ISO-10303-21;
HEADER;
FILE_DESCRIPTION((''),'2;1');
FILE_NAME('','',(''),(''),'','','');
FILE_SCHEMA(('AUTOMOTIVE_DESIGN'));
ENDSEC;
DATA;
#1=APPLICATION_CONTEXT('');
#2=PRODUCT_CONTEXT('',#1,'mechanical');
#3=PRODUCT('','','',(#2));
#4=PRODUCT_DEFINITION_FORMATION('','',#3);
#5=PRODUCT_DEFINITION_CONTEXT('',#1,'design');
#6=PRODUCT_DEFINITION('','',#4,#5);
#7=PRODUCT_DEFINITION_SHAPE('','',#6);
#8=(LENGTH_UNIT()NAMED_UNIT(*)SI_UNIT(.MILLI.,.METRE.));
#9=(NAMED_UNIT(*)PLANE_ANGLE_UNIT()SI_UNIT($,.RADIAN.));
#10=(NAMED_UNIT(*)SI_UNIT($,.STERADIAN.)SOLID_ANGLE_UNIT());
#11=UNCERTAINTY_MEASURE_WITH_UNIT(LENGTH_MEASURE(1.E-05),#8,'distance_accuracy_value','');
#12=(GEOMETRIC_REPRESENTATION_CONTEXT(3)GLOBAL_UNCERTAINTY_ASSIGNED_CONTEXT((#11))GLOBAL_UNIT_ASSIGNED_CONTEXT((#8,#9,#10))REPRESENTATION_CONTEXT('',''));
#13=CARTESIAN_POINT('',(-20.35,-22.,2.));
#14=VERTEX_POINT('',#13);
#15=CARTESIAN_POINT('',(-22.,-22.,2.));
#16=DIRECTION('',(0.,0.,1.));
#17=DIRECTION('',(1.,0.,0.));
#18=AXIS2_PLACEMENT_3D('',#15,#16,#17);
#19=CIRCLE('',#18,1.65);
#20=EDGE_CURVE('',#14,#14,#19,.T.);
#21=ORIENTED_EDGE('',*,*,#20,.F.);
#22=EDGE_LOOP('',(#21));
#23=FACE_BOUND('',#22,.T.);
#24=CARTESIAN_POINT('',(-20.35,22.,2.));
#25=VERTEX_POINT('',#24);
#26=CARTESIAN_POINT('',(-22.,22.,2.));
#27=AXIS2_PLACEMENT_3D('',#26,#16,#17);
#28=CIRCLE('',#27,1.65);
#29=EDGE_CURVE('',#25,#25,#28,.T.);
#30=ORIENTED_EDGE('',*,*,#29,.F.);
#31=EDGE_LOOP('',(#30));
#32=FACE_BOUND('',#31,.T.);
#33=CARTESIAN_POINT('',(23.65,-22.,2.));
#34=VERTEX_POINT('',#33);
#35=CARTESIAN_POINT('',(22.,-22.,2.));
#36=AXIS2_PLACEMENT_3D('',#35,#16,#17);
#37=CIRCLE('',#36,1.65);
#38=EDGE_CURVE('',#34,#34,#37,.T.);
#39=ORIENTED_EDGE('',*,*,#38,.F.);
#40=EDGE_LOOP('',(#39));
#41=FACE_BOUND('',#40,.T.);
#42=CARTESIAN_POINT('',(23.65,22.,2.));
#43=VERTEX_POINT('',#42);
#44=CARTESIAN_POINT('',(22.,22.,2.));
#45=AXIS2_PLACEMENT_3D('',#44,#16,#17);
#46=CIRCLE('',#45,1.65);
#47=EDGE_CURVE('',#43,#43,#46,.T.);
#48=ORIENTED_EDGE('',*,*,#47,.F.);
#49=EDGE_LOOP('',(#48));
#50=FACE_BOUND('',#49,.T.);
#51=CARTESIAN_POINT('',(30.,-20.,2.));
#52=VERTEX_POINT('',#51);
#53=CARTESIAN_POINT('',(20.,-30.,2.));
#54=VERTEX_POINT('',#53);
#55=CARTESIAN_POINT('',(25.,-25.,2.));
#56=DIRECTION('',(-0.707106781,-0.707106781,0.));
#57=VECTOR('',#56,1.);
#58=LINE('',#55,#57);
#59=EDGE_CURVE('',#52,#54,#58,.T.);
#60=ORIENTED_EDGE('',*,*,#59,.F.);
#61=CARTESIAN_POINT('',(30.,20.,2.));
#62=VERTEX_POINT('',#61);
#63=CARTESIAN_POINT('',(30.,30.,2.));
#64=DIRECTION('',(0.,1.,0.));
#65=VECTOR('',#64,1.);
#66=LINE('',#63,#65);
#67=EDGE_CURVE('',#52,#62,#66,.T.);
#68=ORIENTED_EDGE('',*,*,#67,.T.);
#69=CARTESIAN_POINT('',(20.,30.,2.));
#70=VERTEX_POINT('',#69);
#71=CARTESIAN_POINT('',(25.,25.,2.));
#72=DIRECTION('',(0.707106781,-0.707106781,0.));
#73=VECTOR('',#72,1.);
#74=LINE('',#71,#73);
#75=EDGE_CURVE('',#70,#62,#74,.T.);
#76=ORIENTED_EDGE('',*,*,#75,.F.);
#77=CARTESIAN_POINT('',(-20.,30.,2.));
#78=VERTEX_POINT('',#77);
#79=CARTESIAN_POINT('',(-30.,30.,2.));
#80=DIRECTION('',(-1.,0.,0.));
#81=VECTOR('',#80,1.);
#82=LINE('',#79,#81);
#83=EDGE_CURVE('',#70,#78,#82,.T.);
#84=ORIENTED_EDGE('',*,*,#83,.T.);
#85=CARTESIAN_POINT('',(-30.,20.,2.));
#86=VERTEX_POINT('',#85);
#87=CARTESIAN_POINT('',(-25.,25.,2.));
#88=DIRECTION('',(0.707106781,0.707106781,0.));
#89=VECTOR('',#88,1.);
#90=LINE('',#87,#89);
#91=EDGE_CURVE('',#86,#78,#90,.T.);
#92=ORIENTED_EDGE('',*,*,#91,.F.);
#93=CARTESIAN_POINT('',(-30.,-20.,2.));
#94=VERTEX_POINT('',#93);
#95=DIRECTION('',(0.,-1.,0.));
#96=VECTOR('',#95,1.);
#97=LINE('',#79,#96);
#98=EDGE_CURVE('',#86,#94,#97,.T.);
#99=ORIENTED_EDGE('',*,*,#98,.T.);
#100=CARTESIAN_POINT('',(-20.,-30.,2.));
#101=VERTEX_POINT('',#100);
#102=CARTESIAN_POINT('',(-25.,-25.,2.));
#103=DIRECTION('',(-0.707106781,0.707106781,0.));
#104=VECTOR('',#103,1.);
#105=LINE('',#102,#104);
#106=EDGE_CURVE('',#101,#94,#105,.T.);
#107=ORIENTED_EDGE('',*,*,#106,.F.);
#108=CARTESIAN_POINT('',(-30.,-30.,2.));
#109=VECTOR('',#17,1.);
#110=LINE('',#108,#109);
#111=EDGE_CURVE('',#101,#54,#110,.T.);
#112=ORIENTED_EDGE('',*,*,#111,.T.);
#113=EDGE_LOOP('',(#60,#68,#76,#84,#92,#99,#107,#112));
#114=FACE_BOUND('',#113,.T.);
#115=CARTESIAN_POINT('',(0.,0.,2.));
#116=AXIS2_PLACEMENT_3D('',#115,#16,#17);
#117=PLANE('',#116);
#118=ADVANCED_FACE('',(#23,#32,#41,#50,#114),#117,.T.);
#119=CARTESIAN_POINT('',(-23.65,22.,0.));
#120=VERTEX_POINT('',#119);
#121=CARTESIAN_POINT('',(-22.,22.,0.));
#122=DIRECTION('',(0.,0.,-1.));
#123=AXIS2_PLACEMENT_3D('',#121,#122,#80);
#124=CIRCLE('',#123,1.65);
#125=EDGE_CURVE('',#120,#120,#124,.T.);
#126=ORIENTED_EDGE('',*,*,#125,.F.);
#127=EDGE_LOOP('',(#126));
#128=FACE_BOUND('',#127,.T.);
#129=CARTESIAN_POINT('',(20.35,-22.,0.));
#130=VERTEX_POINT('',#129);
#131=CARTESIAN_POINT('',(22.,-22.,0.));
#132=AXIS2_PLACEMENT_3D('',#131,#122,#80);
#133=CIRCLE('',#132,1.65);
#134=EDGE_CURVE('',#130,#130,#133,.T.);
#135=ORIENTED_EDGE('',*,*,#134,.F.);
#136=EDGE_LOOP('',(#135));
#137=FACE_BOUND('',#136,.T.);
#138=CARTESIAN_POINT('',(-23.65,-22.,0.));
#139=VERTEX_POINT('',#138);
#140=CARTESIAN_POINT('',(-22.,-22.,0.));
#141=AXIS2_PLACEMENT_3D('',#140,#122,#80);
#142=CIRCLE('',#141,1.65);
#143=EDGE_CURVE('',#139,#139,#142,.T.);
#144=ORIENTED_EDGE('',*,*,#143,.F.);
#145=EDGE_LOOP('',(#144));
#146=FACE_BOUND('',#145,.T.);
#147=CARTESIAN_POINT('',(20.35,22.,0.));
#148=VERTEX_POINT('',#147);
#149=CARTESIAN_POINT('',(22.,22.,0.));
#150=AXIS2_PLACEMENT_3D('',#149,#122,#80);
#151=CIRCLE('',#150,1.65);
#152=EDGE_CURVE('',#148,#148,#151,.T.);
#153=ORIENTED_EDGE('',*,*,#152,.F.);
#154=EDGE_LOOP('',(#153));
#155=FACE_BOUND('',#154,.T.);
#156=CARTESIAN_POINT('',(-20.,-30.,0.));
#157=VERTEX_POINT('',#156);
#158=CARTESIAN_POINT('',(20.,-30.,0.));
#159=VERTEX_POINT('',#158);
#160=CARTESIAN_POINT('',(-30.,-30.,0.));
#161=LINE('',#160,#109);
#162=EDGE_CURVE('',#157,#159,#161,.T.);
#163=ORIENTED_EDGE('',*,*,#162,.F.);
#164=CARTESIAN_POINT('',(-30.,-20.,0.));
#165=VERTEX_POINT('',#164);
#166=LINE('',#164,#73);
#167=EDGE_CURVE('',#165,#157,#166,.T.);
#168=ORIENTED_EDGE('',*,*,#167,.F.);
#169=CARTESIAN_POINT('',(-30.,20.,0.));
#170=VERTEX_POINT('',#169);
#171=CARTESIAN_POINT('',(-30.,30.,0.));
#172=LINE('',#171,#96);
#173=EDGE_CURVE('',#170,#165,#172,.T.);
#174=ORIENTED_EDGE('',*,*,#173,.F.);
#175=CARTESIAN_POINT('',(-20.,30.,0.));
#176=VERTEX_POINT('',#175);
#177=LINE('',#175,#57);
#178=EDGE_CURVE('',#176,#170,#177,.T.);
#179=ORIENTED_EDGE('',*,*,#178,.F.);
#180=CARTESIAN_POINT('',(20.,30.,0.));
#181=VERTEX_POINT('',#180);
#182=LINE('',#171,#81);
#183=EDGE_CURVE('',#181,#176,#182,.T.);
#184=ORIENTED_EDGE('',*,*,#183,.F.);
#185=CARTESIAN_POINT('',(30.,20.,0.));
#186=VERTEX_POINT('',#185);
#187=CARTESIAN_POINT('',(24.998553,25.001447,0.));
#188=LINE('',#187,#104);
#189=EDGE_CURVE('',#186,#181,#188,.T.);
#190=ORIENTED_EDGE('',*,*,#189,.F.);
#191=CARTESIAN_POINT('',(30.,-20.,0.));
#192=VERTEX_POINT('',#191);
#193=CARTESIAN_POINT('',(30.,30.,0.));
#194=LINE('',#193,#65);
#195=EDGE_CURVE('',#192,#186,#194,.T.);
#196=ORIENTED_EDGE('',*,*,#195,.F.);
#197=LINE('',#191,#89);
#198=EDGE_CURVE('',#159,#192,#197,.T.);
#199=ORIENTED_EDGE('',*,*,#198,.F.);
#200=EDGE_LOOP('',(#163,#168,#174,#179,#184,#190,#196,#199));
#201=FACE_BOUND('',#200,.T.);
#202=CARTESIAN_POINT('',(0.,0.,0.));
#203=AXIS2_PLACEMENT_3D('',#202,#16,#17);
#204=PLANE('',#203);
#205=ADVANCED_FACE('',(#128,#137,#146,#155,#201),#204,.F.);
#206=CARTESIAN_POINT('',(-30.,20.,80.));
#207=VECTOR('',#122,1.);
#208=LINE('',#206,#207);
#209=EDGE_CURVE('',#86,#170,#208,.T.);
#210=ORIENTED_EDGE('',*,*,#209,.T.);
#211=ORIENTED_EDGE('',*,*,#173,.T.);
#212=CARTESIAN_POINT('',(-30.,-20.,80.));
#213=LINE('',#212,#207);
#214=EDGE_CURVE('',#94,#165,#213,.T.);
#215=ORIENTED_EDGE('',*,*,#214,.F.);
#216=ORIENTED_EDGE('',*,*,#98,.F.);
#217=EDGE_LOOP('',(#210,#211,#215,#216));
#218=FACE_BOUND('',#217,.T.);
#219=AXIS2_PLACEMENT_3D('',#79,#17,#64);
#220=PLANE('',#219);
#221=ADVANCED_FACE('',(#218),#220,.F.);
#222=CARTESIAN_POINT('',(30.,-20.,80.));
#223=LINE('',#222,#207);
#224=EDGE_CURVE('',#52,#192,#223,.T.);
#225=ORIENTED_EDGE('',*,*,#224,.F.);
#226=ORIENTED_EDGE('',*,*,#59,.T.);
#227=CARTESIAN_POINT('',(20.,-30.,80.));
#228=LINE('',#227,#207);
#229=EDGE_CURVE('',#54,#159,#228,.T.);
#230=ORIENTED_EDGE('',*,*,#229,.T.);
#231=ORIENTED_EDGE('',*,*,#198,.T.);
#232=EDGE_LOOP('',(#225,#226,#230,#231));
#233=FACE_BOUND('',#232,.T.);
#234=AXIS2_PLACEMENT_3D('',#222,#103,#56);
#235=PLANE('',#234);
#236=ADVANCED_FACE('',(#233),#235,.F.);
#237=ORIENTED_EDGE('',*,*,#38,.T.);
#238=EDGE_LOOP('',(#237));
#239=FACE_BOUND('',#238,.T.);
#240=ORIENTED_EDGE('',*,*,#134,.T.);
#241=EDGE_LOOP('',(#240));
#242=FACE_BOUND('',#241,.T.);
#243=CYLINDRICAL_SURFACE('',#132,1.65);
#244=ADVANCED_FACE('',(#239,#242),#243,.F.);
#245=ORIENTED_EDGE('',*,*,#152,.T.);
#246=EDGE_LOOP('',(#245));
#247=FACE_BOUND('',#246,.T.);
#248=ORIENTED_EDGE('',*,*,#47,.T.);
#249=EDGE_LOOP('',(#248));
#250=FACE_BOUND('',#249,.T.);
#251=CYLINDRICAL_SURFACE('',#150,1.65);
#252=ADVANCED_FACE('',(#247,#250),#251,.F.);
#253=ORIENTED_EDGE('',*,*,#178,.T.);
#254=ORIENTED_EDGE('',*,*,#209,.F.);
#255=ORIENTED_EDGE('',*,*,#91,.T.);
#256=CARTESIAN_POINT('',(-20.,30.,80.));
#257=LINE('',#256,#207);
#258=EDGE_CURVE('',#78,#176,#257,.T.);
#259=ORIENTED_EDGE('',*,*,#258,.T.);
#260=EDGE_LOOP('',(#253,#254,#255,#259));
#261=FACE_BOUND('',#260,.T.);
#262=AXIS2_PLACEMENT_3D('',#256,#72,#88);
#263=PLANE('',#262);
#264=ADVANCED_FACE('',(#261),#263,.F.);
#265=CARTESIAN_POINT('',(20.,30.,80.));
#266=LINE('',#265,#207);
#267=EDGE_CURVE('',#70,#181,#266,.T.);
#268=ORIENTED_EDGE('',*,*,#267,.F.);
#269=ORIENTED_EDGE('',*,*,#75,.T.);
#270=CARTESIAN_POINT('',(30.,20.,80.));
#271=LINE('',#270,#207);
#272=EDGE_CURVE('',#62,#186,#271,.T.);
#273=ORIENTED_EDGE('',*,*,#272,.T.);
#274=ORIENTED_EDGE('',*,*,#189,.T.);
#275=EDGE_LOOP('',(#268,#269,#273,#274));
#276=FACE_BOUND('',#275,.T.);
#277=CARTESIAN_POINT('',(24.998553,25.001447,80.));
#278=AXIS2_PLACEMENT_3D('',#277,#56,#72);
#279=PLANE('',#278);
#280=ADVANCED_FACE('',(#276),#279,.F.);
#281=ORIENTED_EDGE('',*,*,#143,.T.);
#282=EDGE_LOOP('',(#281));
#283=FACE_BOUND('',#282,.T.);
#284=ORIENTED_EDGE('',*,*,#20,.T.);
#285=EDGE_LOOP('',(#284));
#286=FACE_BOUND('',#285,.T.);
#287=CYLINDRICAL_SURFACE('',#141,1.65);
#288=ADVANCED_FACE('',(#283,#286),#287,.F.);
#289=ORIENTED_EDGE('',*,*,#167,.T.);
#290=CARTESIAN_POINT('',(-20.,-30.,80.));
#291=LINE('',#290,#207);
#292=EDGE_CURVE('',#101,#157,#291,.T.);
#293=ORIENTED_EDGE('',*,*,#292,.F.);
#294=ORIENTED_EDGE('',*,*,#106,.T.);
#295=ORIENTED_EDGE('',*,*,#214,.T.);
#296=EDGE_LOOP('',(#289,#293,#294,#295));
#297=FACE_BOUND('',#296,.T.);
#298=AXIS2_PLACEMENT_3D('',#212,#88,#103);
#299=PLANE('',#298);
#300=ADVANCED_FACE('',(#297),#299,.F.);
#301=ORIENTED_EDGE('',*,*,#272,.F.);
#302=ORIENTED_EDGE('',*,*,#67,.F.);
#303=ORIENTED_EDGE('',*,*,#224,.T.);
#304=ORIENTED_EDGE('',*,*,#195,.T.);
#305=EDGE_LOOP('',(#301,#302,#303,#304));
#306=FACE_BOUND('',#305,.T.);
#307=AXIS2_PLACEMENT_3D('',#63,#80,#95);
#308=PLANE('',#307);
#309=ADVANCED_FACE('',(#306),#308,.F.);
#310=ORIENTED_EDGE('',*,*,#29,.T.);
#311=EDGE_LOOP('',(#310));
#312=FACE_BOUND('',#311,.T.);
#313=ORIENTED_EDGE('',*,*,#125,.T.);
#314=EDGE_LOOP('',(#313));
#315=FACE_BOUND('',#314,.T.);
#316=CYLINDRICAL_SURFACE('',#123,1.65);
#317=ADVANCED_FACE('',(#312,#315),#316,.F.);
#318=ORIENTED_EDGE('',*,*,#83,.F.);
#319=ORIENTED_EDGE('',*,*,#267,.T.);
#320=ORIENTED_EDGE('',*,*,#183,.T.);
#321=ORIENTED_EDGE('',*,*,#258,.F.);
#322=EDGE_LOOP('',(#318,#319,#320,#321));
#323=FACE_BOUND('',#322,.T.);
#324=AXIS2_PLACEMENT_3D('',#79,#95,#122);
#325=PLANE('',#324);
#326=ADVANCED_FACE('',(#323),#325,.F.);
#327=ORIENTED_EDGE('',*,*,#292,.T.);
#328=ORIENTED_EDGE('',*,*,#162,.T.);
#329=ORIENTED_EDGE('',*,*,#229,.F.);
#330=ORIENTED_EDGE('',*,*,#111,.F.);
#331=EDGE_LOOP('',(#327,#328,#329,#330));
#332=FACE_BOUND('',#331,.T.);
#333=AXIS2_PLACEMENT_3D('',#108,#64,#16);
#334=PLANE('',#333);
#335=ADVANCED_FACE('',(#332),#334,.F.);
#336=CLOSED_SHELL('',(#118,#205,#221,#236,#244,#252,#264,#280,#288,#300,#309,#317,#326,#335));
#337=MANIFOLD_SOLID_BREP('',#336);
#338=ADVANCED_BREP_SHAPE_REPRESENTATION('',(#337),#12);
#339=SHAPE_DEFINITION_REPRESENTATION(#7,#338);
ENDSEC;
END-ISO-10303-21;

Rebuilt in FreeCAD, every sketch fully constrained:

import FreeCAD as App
import Part
import Sketcher

V = App.Vector


def add_polygon(sketch, points):
    """Adds a closed chain of lines whose ends are joined by coincident constraints."""
    first, n = sketch.GeometryCount, len(points)
    for a, b in zip(points, points[1:] + points[:1]):
        sketch.addGeometry(Part.LineSegment(App.Vector(*a, 0), App.Vector(*b, 0)), False)
    for i in range(n):
        sketch.addConstraint(Sketcher.Constraint("Coincident", first + i, 2, first + (i + 1) % n, 1))

doc = App.newDocument("Part")
body = doc.addObject("PartDesign::Body", "Body")

# Sketch on XY plane
sketch1 = body.newObject("Sketcher::SketchObject", "Sketch")
sketch1.AttachmentSupport = (doc.getObject("XY_Plane"), [""])
sketch1.MapMode = "FlatFace"
add_polygon(sketch1, [(-30, 30), (-30, -30), (30, -30), (30, 30)])  # lines 0-3
sketch1.addConstraint(Sketcher.Constraint("Vertical", 0))
sketch1.addConstraint(Sketcher.Constraint("Horizontal", 1))
sketch1.addConstraint(Sketcher.Constraint("Vertical", 2))
sketch1.addConstraint(Sketcher.Constraint("Horizontal", 3))
sketch1.addConstraint(Sketcher.Constraint("Symmetric", 0, 2, 2, 2, -1, 1))
sketch1.addConstraint(Sketcher.Constraint("Equal", 3, 0))
sketch1.addConstraint(Sketcher.Constraint("DistanceX", 1, 1, 1, 2, 60.0))
pad1 = body.newObject("PartDesign::Pad", "Pad")
pad1.Profile = sketch1
pad1.Length = 2

# Sketch on XY plane
sketch2 = body.newObject("Sketcher::SketchObject", "Sketch001")
sketch2.AttachmentSupport = (doc.getObject("XY_Plane"), [""])
sketch2.MapMode = "FlatFace"
sketch2.addGeometry(Part.Circle(V(22, 22, 0), V(0, 0, 1), 1.6), False)
sketch2.addGeometry(Part.Circle(V(22, -22, 0), V(0, 0, 1), 1.6), False)
sketch2.addGeometry(Part.Circle(V(-22, -22, 0), V(0, 0, 1), 1.6), False)
sketch2.addGeometry(Part.Circle(V(-22, 22, 0), V(0, 0, 1), 1.6), False)
sketch2.addConstraint(Sketcher.Constraint("Equal", 0, 1))
sketch2.addConstraint(Sketcher.Constraint("Equal", 1, 2))
sketch2.addConstraint(Sketcher.Constraint("Equal", 2, 3))
sketch2.addConstraint(Sketcher.Constraint("Symmetric", 0, 3, 2, 3, -1, 1))
sketch2.addConstraint(Sketcher.Constraint("Symmetric", 1, 3, 3, 3, -1, 1))
sketch2.addConstraint(Sketcher.Constraint("Symmetric", 1, 3, 2, 3, -2))
sketch2.addConstraint(Sketcher.Constraint("Diameter", 0, 3.3))
sketch2.addConstraint(Sketcher.Constraint("DistanceX", -1, 1, 0, 3, 22.0))
sketch2.addConstraint(Sketcher.Constraint("DistanceY", -1, 1, 0, 3, 22.0))
doc.recompute()
hole = body.newObject("PartDesign::Hole", "Hole")
hole.Profile = sketch2
hole.ThreadType = "None"
hole.Diameter = 3.3
hole.DepthType = "Dimension"
hole.Depth = 11.5
hole.DrillPoint = "Angled"
hole.DrillPointAngle = 118
hole.Reversed = True

# Sketch on XY plane
sketch3 = body.newObject("Sketcher::SketchObject", "Sketch002")
sketch3.AttachmentSupport = (doc.getObject("XY_Plane"), [""])
sketch3.MapMode = "FlatFace"
add_polygon(sketch3, [(30, -20), (30, -30), (20, -30)])  # lines 0-2
add_polygon(sketch3, [(30, 20), (20, 30), (30, 30)])  # lines 3-5
add_polygon(sketch3, [(-30, 30), (-20, 30), (-30, 20)])  # lines 6-8
add_polygon(sketch3, [(-30, -30), (-30, -20), (-20, -30)])  # lines 9-11
sketch3.addConstraint(Sketcher.Constraint("Vertical", 0))
sketch3.addConstraint(Sketcher.Constraint("Horizontal", 1))
sketch3.addConstraint(Sketcher.Constraint("Horizontal", 4))
sketch3.addConstraint(Sketcher.Constraint("Vertical", 5))
sketch3.addConstraint(Sketcher.Constraint("Horizontal", 6))
sketch3.addConstraint(Sketcher.Constraint("Vertical", 8))
sketch3.addConstraint(Sketcher.Constraint("Vertical", 9))
sketch3.addConstraint(Sketcher.Constraint("Horizontal", 11))
sketch3.addConstraint(Sketcher.Constraint("Symmetric", 1, 2, 6, 2, -1, 1))
sketch3.addConstraint(Sketcher.Constraint("Symmetric", 2, 2, 7, 2, -1, 1))
sketch3.addConstraint(Sketcher.Constraint("Symmetric", 5, 2, 9, 2, -1, 1))
sketch3.addConstraint(Sketcher.Constraint("Symmetric", 3, 2, 10, 2, -1, 1))
sketch3.addConstraint(Sketcher.Constraint("Symmetric", 3, 2, 6, 2, -2))
sketch3.addConstraint(Sketcher.Constraint("Symmetric", 5, 2, 7, 2, -2))
sketch3.addConstraint(Sketcher.Constraint("Perpendicular", 2, 3))
sketch3.addConstraint(Sketcher.Constraint("DistanceX", 1, 2, 1, 1, 10.0))
sketch3.addConstraint(Sketcher.Constraint("DistanceX", -1, 1, 0, 2, 30.0))
sketch3.addConstraint(Sketcher.Constraint("DistanceY", 0, 2, -1, 1, 30.0))
pocket1 = body.newObject("PartDesign::Pocket", "Pocket")
pocket1.Profile = sketch3
pocket1.Length = 80
pocket1.Reversed = True

doc.recompute()
